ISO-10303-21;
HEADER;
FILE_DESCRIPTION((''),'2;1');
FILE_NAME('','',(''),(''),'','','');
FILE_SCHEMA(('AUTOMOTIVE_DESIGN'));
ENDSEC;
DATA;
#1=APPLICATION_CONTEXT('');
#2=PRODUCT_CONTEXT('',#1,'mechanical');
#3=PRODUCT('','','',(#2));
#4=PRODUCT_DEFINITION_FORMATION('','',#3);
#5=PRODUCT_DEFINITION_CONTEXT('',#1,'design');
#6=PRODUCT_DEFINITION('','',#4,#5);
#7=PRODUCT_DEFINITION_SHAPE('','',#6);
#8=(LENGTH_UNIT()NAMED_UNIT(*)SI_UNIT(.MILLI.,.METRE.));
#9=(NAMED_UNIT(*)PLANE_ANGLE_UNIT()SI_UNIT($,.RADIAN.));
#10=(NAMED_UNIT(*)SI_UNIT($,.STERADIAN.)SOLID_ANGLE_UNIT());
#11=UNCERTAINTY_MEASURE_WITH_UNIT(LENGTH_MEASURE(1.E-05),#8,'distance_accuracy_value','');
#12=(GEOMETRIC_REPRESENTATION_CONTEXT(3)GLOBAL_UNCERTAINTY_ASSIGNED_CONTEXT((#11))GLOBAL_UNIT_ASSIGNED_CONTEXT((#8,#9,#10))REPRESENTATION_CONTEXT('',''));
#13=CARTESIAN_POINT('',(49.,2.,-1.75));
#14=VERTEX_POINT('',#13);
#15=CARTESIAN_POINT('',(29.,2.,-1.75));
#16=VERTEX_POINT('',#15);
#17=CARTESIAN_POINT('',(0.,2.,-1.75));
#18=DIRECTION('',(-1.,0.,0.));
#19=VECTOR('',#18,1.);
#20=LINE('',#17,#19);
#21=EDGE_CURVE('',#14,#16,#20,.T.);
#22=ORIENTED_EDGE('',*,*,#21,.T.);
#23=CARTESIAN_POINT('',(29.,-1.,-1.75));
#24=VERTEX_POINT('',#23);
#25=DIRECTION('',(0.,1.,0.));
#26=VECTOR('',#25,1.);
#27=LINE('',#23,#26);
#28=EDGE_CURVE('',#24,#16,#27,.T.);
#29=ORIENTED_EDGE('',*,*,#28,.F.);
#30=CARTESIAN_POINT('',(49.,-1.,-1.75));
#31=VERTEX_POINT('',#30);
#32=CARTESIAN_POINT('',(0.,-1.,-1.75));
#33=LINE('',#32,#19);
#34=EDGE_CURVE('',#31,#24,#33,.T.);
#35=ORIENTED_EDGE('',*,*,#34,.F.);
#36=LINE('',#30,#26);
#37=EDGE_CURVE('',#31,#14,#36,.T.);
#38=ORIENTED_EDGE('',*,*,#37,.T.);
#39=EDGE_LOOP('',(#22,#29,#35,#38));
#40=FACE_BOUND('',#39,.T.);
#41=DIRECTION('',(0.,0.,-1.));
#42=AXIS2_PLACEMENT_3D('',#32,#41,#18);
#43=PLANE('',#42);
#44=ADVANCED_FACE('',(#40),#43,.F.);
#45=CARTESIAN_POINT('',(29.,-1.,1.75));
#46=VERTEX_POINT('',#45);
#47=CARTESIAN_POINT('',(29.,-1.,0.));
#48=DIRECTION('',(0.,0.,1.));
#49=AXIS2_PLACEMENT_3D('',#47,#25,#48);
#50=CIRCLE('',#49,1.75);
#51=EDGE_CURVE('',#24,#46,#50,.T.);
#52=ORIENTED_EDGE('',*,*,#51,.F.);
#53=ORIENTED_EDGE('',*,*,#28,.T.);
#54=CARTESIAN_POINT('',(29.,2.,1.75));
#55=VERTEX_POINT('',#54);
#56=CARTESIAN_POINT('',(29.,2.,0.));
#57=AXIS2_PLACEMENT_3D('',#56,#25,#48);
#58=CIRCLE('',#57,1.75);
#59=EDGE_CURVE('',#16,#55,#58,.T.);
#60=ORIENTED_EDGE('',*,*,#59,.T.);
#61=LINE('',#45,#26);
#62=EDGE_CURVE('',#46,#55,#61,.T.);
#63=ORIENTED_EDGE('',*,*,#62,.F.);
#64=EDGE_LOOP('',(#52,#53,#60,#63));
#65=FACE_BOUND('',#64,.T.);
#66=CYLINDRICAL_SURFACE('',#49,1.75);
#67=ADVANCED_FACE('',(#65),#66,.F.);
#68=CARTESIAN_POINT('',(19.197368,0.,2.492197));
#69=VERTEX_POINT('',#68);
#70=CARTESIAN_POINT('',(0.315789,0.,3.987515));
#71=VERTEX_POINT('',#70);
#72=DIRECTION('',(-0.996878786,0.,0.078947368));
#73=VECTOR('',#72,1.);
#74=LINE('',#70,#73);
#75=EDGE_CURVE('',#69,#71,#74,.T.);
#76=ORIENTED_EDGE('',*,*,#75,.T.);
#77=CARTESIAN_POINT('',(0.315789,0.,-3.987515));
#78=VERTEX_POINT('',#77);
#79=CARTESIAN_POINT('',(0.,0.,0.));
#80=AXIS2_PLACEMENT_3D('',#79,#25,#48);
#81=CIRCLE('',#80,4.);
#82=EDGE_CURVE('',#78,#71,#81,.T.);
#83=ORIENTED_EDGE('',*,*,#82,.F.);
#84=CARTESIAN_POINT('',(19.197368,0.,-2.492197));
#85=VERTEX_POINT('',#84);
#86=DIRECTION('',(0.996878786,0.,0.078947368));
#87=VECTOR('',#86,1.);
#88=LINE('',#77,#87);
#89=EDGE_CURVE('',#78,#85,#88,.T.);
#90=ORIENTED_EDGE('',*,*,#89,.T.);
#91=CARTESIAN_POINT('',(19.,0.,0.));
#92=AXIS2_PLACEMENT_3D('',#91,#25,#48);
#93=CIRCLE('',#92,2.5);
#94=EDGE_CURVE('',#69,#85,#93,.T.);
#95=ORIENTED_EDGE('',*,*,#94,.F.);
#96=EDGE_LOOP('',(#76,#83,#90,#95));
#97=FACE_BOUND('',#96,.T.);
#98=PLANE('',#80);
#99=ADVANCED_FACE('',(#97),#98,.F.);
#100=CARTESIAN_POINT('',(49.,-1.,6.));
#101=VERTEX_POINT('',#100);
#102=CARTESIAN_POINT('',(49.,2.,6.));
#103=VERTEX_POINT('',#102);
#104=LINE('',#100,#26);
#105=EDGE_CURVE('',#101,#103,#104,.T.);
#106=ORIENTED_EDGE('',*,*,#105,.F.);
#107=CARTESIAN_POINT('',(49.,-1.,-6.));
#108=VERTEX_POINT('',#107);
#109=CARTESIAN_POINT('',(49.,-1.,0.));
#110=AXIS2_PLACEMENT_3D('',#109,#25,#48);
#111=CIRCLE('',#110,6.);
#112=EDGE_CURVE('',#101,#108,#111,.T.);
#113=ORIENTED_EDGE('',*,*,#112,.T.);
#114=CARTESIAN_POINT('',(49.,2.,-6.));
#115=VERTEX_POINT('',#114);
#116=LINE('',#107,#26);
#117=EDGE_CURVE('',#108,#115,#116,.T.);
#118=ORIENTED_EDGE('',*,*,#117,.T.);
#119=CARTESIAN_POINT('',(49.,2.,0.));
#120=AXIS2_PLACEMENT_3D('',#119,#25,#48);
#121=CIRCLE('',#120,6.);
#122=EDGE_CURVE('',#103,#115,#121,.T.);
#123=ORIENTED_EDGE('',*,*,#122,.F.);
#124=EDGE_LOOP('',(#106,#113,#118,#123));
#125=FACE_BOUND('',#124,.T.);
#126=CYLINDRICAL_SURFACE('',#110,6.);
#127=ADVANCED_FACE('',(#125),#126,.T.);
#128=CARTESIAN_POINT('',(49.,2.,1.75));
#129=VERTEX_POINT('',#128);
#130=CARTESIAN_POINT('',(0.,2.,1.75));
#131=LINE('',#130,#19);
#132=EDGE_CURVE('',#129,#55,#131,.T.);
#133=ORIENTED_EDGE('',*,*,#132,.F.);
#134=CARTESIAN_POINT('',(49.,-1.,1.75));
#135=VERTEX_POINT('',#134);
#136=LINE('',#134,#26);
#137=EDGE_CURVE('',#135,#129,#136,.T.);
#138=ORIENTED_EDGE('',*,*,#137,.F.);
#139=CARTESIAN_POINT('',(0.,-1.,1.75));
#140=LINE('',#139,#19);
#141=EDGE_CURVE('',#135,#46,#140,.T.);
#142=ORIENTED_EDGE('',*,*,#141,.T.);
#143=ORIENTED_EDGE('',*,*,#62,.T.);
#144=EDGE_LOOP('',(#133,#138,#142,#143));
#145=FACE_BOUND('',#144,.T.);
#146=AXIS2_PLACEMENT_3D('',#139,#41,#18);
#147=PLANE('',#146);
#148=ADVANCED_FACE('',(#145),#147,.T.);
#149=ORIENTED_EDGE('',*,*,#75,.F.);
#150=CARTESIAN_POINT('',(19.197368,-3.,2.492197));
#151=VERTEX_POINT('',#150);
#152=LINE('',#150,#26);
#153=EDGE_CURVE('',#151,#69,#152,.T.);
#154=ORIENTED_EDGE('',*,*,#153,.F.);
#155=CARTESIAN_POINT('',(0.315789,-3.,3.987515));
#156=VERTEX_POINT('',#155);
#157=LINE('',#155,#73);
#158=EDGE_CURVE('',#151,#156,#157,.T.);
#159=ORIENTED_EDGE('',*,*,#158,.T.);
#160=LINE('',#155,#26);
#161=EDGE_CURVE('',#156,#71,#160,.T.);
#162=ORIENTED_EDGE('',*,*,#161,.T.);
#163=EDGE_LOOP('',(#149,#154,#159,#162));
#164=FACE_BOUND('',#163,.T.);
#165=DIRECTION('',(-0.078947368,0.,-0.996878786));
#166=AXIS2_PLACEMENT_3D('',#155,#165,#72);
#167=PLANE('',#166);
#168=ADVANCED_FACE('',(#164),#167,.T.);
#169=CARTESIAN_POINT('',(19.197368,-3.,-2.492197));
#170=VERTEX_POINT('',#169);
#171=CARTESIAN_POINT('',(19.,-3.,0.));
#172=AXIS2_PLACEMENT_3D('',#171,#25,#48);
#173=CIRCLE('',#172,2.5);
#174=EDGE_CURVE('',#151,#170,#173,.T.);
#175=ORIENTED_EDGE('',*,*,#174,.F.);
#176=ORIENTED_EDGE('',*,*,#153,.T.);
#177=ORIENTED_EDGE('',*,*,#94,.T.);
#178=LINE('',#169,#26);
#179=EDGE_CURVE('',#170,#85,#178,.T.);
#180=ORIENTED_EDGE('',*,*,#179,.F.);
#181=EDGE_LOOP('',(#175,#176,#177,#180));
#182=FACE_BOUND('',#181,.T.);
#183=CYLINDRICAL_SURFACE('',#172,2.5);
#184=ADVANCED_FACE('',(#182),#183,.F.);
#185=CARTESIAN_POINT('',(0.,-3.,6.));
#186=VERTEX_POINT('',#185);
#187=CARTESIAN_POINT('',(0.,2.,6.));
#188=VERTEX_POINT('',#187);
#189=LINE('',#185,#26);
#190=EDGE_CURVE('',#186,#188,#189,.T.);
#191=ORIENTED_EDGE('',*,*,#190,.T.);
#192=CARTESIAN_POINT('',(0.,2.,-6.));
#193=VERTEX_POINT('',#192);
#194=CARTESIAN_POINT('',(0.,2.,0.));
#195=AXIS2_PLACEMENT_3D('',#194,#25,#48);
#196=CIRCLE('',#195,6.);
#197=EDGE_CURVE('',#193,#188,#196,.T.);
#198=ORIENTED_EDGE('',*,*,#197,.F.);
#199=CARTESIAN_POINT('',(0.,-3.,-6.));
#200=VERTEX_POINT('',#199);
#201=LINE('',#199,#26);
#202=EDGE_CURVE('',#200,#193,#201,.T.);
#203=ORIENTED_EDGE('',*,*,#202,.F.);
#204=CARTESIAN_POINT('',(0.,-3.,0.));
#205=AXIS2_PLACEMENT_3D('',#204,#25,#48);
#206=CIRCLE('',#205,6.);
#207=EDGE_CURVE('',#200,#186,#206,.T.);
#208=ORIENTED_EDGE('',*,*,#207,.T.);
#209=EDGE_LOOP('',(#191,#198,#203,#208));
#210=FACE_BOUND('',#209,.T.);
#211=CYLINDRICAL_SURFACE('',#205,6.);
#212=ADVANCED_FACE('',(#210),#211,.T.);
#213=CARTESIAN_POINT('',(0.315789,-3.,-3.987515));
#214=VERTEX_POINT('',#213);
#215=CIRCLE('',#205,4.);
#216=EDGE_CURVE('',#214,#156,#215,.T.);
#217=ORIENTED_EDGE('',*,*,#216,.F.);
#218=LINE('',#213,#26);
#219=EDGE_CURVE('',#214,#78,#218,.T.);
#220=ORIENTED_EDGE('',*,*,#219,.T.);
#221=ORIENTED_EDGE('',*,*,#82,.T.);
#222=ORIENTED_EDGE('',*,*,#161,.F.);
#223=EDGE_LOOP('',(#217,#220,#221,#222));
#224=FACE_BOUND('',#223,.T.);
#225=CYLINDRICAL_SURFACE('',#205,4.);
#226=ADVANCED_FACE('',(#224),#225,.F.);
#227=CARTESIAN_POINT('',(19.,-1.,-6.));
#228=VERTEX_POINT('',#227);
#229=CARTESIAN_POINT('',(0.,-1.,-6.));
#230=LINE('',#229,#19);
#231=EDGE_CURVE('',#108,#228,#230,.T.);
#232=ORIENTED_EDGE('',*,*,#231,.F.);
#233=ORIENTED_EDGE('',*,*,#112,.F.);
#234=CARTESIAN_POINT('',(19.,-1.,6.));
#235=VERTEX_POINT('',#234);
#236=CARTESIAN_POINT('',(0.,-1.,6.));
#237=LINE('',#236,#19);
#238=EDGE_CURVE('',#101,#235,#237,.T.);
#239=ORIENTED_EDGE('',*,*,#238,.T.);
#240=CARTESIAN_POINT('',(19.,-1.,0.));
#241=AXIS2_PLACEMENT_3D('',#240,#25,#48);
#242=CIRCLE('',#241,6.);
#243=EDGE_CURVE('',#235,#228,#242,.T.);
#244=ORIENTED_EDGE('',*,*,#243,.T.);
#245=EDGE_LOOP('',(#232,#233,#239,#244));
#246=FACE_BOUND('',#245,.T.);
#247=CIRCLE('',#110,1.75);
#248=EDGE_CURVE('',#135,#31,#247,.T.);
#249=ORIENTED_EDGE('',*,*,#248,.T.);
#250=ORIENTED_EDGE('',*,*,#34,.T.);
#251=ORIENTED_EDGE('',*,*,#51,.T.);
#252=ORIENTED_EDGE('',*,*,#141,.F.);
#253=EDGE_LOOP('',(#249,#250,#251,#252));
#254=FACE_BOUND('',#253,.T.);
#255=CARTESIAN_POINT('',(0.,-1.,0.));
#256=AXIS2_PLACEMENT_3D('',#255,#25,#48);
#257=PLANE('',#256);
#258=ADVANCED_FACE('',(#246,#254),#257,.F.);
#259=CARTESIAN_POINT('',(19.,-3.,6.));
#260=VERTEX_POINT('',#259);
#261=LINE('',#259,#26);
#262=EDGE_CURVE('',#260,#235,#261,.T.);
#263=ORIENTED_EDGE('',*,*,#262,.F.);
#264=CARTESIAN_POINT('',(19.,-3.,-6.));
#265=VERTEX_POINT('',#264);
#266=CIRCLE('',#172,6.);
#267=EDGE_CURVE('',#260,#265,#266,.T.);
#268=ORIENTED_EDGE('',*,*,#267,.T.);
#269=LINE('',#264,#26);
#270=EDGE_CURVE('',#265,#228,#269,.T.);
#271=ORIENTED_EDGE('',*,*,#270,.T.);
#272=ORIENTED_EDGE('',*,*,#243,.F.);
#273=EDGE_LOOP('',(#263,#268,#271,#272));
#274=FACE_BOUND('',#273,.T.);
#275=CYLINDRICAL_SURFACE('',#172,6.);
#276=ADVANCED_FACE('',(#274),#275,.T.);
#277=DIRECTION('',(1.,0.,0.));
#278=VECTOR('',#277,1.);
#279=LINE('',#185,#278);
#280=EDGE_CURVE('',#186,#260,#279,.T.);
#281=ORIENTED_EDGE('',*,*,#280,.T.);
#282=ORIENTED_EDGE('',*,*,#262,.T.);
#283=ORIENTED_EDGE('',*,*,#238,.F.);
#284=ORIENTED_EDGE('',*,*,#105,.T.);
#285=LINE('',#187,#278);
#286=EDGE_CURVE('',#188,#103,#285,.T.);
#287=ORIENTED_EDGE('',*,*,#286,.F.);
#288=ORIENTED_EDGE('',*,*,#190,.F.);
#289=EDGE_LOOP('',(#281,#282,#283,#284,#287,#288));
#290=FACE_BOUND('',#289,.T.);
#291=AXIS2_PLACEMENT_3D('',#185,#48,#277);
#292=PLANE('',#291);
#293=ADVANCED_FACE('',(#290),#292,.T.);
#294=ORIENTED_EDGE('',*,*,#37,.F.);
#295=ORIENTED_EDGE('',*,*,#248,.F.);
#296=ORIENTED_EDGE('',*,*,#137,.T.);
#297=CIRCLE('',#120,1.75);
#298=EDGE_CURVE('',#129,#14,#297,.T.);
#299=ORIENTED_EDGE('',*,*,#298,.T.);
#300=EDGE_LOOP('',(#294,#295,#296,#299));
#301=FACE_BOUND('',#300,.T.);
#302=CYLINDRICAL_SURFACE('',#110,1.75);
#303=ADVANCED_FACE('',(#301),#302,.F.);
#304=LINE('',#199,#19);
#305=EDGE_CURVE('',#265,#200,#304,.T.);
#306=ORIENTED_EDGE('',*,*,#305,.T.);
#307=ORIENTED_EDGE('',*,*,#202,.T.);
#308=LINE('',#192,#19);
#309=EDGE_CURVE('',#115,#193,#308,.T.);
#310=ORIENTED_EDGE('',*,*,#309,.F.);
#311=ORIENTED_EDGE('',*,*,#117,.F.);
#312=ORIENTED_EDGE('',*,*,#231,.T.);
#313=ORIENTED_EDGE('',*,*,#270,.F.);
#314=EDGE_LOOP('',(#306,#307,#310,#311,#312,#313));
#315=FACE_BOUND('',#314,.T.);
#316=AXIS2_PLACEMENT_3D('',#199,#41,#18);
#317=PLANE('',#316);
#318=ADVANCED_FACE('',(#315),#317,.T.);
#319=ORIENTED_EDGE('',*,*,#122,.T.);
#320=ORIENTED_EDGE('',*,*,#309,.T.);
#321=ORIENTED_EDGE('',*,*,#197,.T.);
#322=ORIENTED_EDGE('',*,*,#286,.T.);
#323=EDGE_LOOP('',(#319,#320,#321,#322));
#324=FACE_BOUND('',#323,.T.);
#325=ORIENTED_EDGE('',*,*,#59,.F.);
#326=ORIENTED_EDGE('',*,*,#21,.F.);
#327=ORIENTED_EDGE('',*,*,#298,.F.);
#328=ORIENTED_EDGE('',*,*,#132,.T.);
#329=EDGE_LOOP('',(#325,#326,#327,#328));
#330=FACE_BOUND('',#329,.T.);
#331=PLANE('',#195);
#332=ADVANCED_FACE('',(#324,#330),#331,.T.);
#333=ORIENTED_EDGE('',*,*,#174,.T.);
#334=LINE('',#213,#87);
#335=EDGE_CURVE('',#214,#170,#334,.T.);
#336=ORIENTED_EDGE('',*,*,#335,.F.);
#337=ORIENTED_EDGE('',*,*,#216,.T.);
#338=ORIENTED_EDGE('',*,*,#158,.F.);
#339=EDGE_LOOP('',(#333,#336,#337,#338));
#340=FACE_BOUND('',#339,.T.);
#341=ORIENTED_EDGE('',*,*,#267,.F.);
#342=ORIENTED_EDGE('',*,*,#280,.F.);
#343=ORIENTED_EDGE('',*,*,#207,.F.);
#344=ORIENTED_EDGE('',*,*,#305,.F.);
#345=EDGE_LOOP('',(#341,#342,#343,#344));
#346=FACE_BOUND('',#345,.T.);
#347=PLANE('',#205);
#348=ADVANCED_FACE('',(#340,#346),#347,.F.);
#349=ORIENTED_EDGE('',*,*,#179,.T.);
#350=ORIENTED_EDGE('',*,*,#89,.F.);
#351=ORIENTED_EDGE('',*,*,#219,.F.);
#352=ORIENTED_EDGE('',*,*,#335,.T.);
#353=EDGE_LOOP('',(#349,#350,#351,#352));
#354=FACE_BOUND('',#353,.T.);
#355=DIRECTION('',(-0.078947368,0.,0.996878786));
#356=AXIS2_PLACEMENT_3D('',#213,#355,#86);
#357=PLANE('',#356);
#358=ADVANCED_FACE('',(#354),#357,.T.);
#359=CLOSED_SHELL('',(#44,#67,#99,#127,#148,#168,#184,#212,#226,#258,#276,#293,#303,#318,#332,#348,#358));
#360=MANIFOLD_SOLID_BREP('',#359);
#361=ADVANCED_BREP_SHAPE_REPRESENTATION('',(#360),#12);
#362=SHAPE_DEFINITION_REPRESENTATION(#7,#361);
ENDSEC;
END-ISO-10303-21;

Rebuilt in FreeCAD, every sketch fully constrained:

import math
import FreeCAD as App
import Part
import Sketcher

V = App.Vector

doc = App.newDocument("Part")
params = doc.addObject("Spreadsheet::Sheet", "Params")
for row, (alias, value) in enumerate([
    ("sketch1_radius", "6 mm"),
    ("sketch1_radius2", "4 mm"),
    ("sketch1_radius3", "2.5 mm"),
    ("sketch1_width", "19 mm"),
    ("pad1_length", "3 mm"),
    ("sketch2_radius", "6 mm"),
    ("sketch2_width", "19 mm"),
    ("pad2_length", "2 mm"),
    ("sketch3_radius", "6 mm"),
    ("sketch3_width", "30 mm"),
    ("sketch3_width2", "20 mm"),
    ("sketch3_radius2", "1.75 mm"),
    ("pad3_length", "3 mm"),
], start=1):
    params.set(f"A{row}", alias)
    params.set(f"B{row}", "=" + value)
    params.setAlias(f"B{row}", alias)

body = doc.addObject("PartDesign::Body", "Body")

# Sketch on XZ plane
sketch1 = doc.addObject("Sketcher::SketchObject", "Sketch")
body.addObject(sketch1)
sketch1.AttachmentSupport = (doc.XZ_Plane, [""])
sketch1.MapMode = "FlatFace"
sketch1.addGeometry(Part.ArcOfCircle(Part.Circle(V(19, 0, 0), V(0, 0, 1), 6), math.radians(-90), math.radians(90)), False)
sketch1.addGeometry(Part.LineSegment(V(19, -6, 0), V(0, -6, 0)), False)
sketch1.addGeometry(Part.ArcOfCircle(Part.Circle(V(0, 0, 0), V(0, 0, 1), 6), math.radians(90), math.radians(270)), False)
sketch1.addGeometry(Part.LineSegment(V(0, 6, 0), V(19, 6, 0)), False)
sketch1.addGeometry(Part.LineSegment(V(19.2, 2.5, 0), V(0.3, 4, 0)), False)
sketch1.addGeometry(Part.ArcOfCircle(Part.Circle(V(0, 0, 0), V(0, 0, 1), 4), math.radians(85), math.radians(275)), False)
sketch1.addGeometry(Part.LineSegment(V(0.3, -4, 0), V(19.2, -2.5, 0)), False)
sketch1.addGeometry(Part.ArcOfCircle(Part.Circle(V(19, 0, 0), V(0, 0, 1), 2.5), math.radians(-85), math.radians(85)), False)
sketch1.addConstraint(Sketcher.Constraint("Tangent", 0, 1, 1, 1))
sketch1.addConstraint(Sketcher.Constraint("Tangent", 1, 2, 2, 2))
sketch1.addConstraint(Sketcher.Constraint("Tangent", 2, 1, 3, 1))
sketch1.addConstraint(Sketcher.Constraint("Tangent", 3, 2, 0, 2))
sketch1.addConstraint(Sketcher.Constraint("Tangent", 4, 2, 5, 1))
sketch1.addConstraint(Sketcher.Constraint("Tangent", 5, 2, 6, 1))
sketch1.addConstraint(Sketcher.Constraint("Tangent", 6, 2, 7, 1))
sketch1.addConstraint(Sketcher.Constraint("Tangent", 7, 2, 4, 1))
sketch1.addConstraint(Sketcher.Constraint("Horizontal", 1))
sketch1.addConstraint(Sketcher.Constraint("Horizontal", 3))
sketch1.addConstraint(Sketcher.Constraint("Coincident", 2, 3, -1, 1))
sketch1.addConstraint(Sketcher.Constraint("Coincident", 5, 3, -1, 1))
sketch1.addConstraint(Sketcher.Constraint("Coincident", 7, 3, 0, 3))
sketch1.addConstraint(Sketcher.Constraint("Radius", 0, 6.0))
sketch1.addConstraint(Sketcher.Constraint("Radius", 5, 4.0))
sketch1.addConstraint(Sketcher.Constraint("Radius", 7, 2.5))
sketch1.addConstraint(Sketcher.Constraint("DistanceX", 1, 2, 1, 1, 19.0))
sketch1.setExpression("Constraints[13]", "Params.sketch1_radius")
sketch1.setExpression("Constraints[14]", "Params.sketch1_radius2")
sketch1.setExpression("Constraints[15]", "Params.sketch1_radius3")
sketch1.setExpression("Constraints[16]", "Params.sketch1_width")
pad1 = doc.addObject("PartDesign::Pad", "Pad")
body.addObject(pad1)
pad1.Profile = sketch1
pad1.setExpression("Length", "Params.pad1_length")

# Sketch on XZ plane
sketch2 = doc.addObject("Sketcher::SketchObject", "Sketch001")
body.addObject(sketch2)
sketch2.AttachmentSupport = (doc.XZ_Plane, [""])
sketch2.MapMode = "FlatFace"
sketch2.AttachmentOffset = App.Placement(V(0, 0, -2), App.Rotation())
sketch2.addGeometry(Part.LineSegment(V(0, 6, 0), V(19, 6, 0)), False)
sketch2.addGeometry(Part.ArcOfCircle(Part.Circle(V(19, 0, 0), V(0, 0, 1), 6), math.radians(0), math.radians(90)), False)
sketch2.addGeometry(Part.ArcOfCircle(Part.Circle(V(19, 0, 0), V(0, 0, 1), 6), math.radians(-90), math.radians(0)), False)
sketch2.addGeometry(Part.LineSegment(V(19, -6, 0), V(0, -6, 0)), False)
sketch2.addGeometry(Part.ArcOfCircle(Part.Circle(V(0, 0, 0), V(0, 0, 1), 6), math.radians(90), math.radians(270)), False)
sketch2.addConstraint(Sketcher.Constraint("Tangent", 0, 2, 1, 2))
sketch2.addConstraint(Sketcher.Constraint("Tangent", 1, 1, 2, 2))
sketch2.addConstraint(Sketcher.Constraint("Tangent", 2, 1, 3, 1))
sketch2.addConstraint(Sketcher.Constraint("Tangent", 3, 2, 4, 2))
sketch2.addConstraint(Sketcher.Constraint("Tangent", 4, 1, 0, 1))
sketch2.addConstraint(Sketcher.Constraint("Horizontal", 0))
sketch2.addConstraint(Sketcher.Constraint("Horizontal", 3))
sketch2.addConstraint(Sketcher.Constraint("Coincident", 4, 3, -1, 1))
sketch2.addConstraint(Sketcher.Constraint("Equal", 1, 2))
sketch2.addConstraint(Sketcher.Constraint("PointOnObject", 1, 1, -1))
sketch2.addConstraint(Sketcher.Constraint("Radius", 1, 6.0))
sketch2.addConstraint(Sketcher.Constraint("DistanceX", 0, 1, 0, 2, 19.0))
sketch2.setExpression("Constraints[10]", "Params.sketch2_radius")
sketch2.setExpression("Constraints[11]", "Params.sketch2_width")
pad2 = doc.addObject("PartDesign::Pad", "Pad001")
body.addObject(pad2)
pad2.Profile = sketch2
pad2.setExpression("Length", "Params.pad2_length")

# Sketch on XZ plane
sketch3 = doc.addObject("Sketcher::SketchObject", "Sketch002")
body.addObject(sketch3)
sketch3.AttachmentSupport = (doc.XZ_Plane, [""])
sketch3.MapMode = "FlatFace"
sketch3.AttachmentOffset = App.Placement(V(0, 0, -2), App.Rotation())
sketch3.addGeometry(Part.ArcOfCircle(Part.Circle(V(49, 0, 0), V(0, 0, 1), 6), math.radians(-90), math.radians(90)), False)
sketch3.addGeometry(Part.LineSegment(V(49, -6, 0), V(19, -6, 0)), False)
sketch3.addGeometry(Part.ArcOfCircle(Part.Circle(V(19, 0, 0), V(0, 0, 1), 6), math.radians(-90), math.radians(90)), False)
sketch3.addGeometry(Part.LineSegment(V(19, 6, 0), V(49, 6, 0)), False)
sketch3.addGeometry(Part.LineSegment(V(29, -1.8, 0), V(49, -1.8, 0)), False)
sketch3.addGeometry(Part.ArcOfCircle(Part.Circle(V(49, 0, 0), V(0, 0, 1), 1.8), math.radians(-90), math.radians(90)), False)
sketch3.addGeometry(Part.LineSegment(V(49, 1.8, 0), V(29, 1.8, 0)), False)
sketch3.addGeometry(Part.ArcOfCircle(Part.Circle(V(29, 0, 0), V(0, 0, 1), 1.8), math.radians(90), math.radians(270)), False)
sketch3.addConstraint(Sketcher.Constraint("Tangent", 0, 1, 1, 1))
sketch3.addConstraint(Sketcher.Constraint("Tangent", 1, 2, 2, 1))
sketch3.addConstraint(Sketcher.Constraint("Tangent", 2, 2, 3, 1))
sketch3.addConstraint(Sketcher.Constraint("Tangent", 3, 2, 0, 2))
sketch3.addConstraint(Sketcher.Constraint("Tangent", 4, 2, 5, 1))
sketch3.addConstraint(Sketcher.Constraint("Tangent", 5, 2, 6, 1))
sketch3.addConstraint(Sketcher.Constraint("Tangent", 6, 2, 7, 1))
sketch3.addConstraint(Sketcher.Constraint("Tangent", 7, 2, 4, 1))
sketch3.addConstraint(Sketcher.Constraint("Horizontal", 1))
sketch3.addConstraint(Sketcher.Constraint("Horizontal", 3))
sketch3.addConstraint(Sketcher.Constraint("Horizontal", 4))
sketch3.addConstraint(Sketcher.Constraint("Horizontal", 6))
sketch3.addConstraint(Sketcher.Constraint("Coincident", 5, 3, 0, 3))
sketch3.addConstraint(Sketcher.Constraint("PointOnObject", 0, 3, -1))
sketch3.addConstraint(Sketcher.Constraint("Radius", 0, 6.0))
sketch3.addConstraint(Sketcher.Constraint("DistanceX", 1, 2, 1, 1, 30.0))
sketch3.addConstraint(Sketcher.Constraint("DistanceX", 4, 1, 4, 2, 20.0))
sketch3.addConstraint(Sketcher.Constraint("Radius", 5, 1.75))
sketch3.addConstraint(Sketcher.Constraint("DistanceX", -1, 1, 0, 3, 49.0))
sketch3.setExpression("Constraints[14]", "Params.sketch3_radius")
sketch3.setExpression("Constraints[15]", "Params.sketch3_width")
sketch3.setExpression("Constraints[16]", "Params.sketch3_width2")
sketch3.setExpression("Constraints[17]", "Params.sketch3_radius2")
pad3 = doc.addObject("PartDesign::Pad", "Pad002")
body.addObject(pad3)
pad3.Profile = sketch3
pad3.setExpression("Length", "Params.pad3_length")

doc.recompute()
